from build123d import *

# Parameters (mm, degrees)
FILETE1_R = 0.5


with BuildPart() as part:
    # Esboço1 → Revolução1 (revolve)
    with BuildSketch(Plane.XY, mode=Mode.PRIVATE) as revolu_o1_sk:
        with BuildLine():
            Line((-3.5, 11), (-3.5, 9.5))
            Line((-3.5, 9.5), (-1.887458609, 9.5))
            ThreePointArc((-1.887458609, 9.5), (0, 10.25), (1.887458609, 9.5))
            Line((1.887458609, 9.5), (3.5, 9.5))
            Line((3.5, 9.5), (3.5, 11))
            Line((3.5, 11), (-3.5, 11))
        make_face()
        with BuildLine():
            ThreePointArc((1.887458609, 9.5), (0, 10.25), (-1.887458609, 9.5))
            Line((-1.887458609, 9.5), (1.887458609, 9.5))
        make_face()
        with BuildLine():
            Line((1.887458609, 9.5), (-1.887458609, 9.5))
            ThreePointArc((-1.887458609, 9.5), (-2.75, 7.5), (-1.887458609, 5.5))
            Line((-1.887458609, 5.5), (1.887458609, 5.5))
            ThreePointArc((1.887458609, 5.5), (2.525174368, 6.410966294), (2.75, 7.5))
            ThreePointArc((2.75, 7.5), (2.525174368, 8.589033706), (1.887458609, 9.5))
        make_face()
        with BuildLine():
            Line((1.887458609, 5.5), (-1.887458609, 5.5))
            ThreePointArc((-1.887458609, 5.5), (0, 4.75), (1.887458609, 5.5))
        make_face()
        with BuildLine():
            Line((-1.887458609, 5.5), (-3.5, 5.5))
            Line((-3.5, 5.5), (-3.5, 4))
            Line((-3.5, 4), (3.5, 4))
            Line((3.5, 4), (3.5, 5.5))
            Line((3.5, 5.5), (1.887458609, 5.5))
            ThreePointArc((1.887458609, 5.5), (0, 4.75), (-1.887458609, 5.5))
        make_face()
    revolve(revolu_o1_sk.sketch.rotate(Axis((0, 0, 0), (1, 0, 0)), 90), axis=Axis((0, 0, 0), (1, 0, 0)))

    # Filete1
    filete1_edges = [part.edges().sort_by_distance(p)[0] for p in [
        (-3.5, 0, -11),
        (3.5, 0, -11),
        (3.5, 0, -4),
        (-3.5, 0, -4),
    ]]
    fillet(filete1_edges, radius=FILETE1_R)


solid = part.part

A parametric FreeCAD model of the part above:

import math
import FreeCAD as App
import Part
import Sketcher


def edges_at(feature, points):
    """Names of the edges that pass closest to the given points."""
    edges = feature.Shape.Edges
    near = lambda p: min(range(len(edges)), key=lambda i: edges[i].distToShape(Part.Vertex(*p))[0])
    return sorted({f"Edge{near(p) + 1}" for p in points})

doc = App.newDocument("Part")
body = doc.addObject("PartDesign::Body", "Body")

# Sketch on XY plane
sketch1 = body.newObject("Sketcher::SketchObject", "Sketch")
sketch1.AttachmentSupport = (doc.getObject("XY_Plane"), [""])
sketch1.MapMode = "FlatFace"
sketch1.addGeometry([
    Part.LineSegment(App.Vector(-3.5, 11, 0), App.Vector(-3.5, 9.5, 0)),  # 0
    Part.LineSegment(App.Vector(-3.5, 9.5, 0), App.Vector(-1.9, 9.5, 0)),  # 1
    Part.ArcOfCircle(Part.Circle(App.Vector(0, 7.5, 0), App.Vector(0, 0, 1), 2.8), math.radians(133), math.radians(227)),  # 2
    Part.LineSegment(App.Vector(-1.9, 5.5, 0), App.Vector(-3.5, 5.5, 0)),  # 3
    Part.LineSegment(App.Vector(-3.5, 5.5, 0), App.Vector(-3.5, 4, 0)),  # 4
    Part.LineSegment(App.Vector(-3.5, 4, 0), App.Vector(3.5, 4, 0)),  # 5
    Part.LineSegment(App.Vector(3.5, 4, 0), App.Vector(3.5, 5.5, 0)),  # 6
    Part.LineSegment(App.Vector(3.5, 5.5, 0), App.Vector(1.9, 5.5, 0)),  # 7
    Part.ArcOfCircle(Part.Circle(App.Vector(0, 7.5, 0), App.Vector(0, 0, 1), 2.7), math.radians(-47), math.radians(0)),  # 8
    Part.ArcOfCircle(Part.Circle(App.Vector(0, 7.5, 0), App.Vector(0, 0, 1), 2.7), math.radians(0), math.radians(47)),  # 9
    Part.LineSegment(App.Vector(1.9, 9.5, 0), App.Vector(3.5, 9.5, 0)),  # 10
    Part.LineSegment(App.Vector(3.5, 9.5, 0), App.Vector(3.5, 11, 0)),  # 11
    Part.LineSegment(App.Vector(3.5, 11, 0), App.Vector(-3.5, 11, 0)),  # 12
], False)
sketch1.addConstraint([
    Sketcher.Constraint("Coincident", 0, 2, 1, 1),
    Sketcher.Constraint("Coincident", 1, 2, 2, 1),
    Sketcher.Constraint("Coincident", 2, 2, 3, 1),
    Sketcher.Constraint("Coincident", 3, 2, 4, 1),
    Sketcher.Constraint("Coincident", 4, 2, 5, 1),
    Sketcher.Constraint("Coincident", 5, 2, 6, 1),
    Sketcher.Constraint("Coincident", 6, 2, 7, 1),
    Sketcher.Constraint("Coincident", 7, 2, 8, 1),
    Sketcher.Constraint("Tangent", 8, 2, 9, 1),
    Sketcher.Constraint("Coincident", 9, 2, 10, 1),
    Sketcher.Constraint("Coincident", 10, 2, 11, 1),
    Sketcher.Constraint("Coincident", 11, 2, 12, 1),
    Sketcher.Constraint("Coincident", 12, 2, 0, 1),
    Sketcher.Constraint("Vertical", 0),
    Sketcher.Constraint("Horizontal", 1),
    Sketcher.Constraint("Horizontal", 3),
    Sketcher.Constraint("Vertical", 4),
    Sketcher.Constraint("Horizontal", 5),
    Sketcher.Constraint("Vertical", 6),
    Sketcher.Constraint("Horizontal", 7),
    Sketcher.Constraint("Horizontal", 10),
    Sketcher.Constraint("Vertical", 11),
    Sketcher.Constraint("Horizontal", 12),
    Sketcher.Constraint("Coincident", 8, 3, 2, 3),
    Sketcher.Constraint("Equal", 2, 8),
    Sketcher.Constraint("Equal", 8, 9),
    Sketcher.Constraint("Symmetric", 3, 2, 6, 2, -2),
    Sketcher.Constraint("Symmetric", 1, 2, 9, 2, -2),
    Sketcher.Constraint("Horizontal", 9, 3, 8, 2),
    Sketcher.Constraint("Vertical", 1, 2, 2, 2),
    Sketcher.Constraint("Vertical", 0, 2, 3, 2),
    Sketcher.Constraint("Vertical", 6, 2, 10, 2),
    Sketcher.Constraint("Equal", 0, 4),
    Sketcher.Constraint("DistanceX", 5, 1, 5, 2, 7.0),
    Sketcher.Constraint("Radius", 2, 2.75),
    Sketcher.Constraint("DistanceY", 0, 2, 0, 1, 1.5),
    Sketcher.Constraint("DistanceY", -1, 1, 4, 2, 4.0),
    Sketcher.Constraint("DistanceY", -1, 1, 11, 2, 11.0),
])
revolution = body.newObject("PartDesign::Revolution", "Revolution")
revolution.Profile = sketch1
revolution.ReferenceAxis = (sketch1, ["H_Axis"])
revolution.Angle = 360
doc.recompute()

fillet = body.newObject("PartDesign::Fillet", "Fillet")
fillet.Base = (revolution, edges_at(revolution, [
    (-3.5, 0, -11),
    (3.5, 0, -11),
    (3.5, 0, -4),
    (-3.5, 0, -4),
]))
fillet.Radius = 0.5

doc.recompute()
